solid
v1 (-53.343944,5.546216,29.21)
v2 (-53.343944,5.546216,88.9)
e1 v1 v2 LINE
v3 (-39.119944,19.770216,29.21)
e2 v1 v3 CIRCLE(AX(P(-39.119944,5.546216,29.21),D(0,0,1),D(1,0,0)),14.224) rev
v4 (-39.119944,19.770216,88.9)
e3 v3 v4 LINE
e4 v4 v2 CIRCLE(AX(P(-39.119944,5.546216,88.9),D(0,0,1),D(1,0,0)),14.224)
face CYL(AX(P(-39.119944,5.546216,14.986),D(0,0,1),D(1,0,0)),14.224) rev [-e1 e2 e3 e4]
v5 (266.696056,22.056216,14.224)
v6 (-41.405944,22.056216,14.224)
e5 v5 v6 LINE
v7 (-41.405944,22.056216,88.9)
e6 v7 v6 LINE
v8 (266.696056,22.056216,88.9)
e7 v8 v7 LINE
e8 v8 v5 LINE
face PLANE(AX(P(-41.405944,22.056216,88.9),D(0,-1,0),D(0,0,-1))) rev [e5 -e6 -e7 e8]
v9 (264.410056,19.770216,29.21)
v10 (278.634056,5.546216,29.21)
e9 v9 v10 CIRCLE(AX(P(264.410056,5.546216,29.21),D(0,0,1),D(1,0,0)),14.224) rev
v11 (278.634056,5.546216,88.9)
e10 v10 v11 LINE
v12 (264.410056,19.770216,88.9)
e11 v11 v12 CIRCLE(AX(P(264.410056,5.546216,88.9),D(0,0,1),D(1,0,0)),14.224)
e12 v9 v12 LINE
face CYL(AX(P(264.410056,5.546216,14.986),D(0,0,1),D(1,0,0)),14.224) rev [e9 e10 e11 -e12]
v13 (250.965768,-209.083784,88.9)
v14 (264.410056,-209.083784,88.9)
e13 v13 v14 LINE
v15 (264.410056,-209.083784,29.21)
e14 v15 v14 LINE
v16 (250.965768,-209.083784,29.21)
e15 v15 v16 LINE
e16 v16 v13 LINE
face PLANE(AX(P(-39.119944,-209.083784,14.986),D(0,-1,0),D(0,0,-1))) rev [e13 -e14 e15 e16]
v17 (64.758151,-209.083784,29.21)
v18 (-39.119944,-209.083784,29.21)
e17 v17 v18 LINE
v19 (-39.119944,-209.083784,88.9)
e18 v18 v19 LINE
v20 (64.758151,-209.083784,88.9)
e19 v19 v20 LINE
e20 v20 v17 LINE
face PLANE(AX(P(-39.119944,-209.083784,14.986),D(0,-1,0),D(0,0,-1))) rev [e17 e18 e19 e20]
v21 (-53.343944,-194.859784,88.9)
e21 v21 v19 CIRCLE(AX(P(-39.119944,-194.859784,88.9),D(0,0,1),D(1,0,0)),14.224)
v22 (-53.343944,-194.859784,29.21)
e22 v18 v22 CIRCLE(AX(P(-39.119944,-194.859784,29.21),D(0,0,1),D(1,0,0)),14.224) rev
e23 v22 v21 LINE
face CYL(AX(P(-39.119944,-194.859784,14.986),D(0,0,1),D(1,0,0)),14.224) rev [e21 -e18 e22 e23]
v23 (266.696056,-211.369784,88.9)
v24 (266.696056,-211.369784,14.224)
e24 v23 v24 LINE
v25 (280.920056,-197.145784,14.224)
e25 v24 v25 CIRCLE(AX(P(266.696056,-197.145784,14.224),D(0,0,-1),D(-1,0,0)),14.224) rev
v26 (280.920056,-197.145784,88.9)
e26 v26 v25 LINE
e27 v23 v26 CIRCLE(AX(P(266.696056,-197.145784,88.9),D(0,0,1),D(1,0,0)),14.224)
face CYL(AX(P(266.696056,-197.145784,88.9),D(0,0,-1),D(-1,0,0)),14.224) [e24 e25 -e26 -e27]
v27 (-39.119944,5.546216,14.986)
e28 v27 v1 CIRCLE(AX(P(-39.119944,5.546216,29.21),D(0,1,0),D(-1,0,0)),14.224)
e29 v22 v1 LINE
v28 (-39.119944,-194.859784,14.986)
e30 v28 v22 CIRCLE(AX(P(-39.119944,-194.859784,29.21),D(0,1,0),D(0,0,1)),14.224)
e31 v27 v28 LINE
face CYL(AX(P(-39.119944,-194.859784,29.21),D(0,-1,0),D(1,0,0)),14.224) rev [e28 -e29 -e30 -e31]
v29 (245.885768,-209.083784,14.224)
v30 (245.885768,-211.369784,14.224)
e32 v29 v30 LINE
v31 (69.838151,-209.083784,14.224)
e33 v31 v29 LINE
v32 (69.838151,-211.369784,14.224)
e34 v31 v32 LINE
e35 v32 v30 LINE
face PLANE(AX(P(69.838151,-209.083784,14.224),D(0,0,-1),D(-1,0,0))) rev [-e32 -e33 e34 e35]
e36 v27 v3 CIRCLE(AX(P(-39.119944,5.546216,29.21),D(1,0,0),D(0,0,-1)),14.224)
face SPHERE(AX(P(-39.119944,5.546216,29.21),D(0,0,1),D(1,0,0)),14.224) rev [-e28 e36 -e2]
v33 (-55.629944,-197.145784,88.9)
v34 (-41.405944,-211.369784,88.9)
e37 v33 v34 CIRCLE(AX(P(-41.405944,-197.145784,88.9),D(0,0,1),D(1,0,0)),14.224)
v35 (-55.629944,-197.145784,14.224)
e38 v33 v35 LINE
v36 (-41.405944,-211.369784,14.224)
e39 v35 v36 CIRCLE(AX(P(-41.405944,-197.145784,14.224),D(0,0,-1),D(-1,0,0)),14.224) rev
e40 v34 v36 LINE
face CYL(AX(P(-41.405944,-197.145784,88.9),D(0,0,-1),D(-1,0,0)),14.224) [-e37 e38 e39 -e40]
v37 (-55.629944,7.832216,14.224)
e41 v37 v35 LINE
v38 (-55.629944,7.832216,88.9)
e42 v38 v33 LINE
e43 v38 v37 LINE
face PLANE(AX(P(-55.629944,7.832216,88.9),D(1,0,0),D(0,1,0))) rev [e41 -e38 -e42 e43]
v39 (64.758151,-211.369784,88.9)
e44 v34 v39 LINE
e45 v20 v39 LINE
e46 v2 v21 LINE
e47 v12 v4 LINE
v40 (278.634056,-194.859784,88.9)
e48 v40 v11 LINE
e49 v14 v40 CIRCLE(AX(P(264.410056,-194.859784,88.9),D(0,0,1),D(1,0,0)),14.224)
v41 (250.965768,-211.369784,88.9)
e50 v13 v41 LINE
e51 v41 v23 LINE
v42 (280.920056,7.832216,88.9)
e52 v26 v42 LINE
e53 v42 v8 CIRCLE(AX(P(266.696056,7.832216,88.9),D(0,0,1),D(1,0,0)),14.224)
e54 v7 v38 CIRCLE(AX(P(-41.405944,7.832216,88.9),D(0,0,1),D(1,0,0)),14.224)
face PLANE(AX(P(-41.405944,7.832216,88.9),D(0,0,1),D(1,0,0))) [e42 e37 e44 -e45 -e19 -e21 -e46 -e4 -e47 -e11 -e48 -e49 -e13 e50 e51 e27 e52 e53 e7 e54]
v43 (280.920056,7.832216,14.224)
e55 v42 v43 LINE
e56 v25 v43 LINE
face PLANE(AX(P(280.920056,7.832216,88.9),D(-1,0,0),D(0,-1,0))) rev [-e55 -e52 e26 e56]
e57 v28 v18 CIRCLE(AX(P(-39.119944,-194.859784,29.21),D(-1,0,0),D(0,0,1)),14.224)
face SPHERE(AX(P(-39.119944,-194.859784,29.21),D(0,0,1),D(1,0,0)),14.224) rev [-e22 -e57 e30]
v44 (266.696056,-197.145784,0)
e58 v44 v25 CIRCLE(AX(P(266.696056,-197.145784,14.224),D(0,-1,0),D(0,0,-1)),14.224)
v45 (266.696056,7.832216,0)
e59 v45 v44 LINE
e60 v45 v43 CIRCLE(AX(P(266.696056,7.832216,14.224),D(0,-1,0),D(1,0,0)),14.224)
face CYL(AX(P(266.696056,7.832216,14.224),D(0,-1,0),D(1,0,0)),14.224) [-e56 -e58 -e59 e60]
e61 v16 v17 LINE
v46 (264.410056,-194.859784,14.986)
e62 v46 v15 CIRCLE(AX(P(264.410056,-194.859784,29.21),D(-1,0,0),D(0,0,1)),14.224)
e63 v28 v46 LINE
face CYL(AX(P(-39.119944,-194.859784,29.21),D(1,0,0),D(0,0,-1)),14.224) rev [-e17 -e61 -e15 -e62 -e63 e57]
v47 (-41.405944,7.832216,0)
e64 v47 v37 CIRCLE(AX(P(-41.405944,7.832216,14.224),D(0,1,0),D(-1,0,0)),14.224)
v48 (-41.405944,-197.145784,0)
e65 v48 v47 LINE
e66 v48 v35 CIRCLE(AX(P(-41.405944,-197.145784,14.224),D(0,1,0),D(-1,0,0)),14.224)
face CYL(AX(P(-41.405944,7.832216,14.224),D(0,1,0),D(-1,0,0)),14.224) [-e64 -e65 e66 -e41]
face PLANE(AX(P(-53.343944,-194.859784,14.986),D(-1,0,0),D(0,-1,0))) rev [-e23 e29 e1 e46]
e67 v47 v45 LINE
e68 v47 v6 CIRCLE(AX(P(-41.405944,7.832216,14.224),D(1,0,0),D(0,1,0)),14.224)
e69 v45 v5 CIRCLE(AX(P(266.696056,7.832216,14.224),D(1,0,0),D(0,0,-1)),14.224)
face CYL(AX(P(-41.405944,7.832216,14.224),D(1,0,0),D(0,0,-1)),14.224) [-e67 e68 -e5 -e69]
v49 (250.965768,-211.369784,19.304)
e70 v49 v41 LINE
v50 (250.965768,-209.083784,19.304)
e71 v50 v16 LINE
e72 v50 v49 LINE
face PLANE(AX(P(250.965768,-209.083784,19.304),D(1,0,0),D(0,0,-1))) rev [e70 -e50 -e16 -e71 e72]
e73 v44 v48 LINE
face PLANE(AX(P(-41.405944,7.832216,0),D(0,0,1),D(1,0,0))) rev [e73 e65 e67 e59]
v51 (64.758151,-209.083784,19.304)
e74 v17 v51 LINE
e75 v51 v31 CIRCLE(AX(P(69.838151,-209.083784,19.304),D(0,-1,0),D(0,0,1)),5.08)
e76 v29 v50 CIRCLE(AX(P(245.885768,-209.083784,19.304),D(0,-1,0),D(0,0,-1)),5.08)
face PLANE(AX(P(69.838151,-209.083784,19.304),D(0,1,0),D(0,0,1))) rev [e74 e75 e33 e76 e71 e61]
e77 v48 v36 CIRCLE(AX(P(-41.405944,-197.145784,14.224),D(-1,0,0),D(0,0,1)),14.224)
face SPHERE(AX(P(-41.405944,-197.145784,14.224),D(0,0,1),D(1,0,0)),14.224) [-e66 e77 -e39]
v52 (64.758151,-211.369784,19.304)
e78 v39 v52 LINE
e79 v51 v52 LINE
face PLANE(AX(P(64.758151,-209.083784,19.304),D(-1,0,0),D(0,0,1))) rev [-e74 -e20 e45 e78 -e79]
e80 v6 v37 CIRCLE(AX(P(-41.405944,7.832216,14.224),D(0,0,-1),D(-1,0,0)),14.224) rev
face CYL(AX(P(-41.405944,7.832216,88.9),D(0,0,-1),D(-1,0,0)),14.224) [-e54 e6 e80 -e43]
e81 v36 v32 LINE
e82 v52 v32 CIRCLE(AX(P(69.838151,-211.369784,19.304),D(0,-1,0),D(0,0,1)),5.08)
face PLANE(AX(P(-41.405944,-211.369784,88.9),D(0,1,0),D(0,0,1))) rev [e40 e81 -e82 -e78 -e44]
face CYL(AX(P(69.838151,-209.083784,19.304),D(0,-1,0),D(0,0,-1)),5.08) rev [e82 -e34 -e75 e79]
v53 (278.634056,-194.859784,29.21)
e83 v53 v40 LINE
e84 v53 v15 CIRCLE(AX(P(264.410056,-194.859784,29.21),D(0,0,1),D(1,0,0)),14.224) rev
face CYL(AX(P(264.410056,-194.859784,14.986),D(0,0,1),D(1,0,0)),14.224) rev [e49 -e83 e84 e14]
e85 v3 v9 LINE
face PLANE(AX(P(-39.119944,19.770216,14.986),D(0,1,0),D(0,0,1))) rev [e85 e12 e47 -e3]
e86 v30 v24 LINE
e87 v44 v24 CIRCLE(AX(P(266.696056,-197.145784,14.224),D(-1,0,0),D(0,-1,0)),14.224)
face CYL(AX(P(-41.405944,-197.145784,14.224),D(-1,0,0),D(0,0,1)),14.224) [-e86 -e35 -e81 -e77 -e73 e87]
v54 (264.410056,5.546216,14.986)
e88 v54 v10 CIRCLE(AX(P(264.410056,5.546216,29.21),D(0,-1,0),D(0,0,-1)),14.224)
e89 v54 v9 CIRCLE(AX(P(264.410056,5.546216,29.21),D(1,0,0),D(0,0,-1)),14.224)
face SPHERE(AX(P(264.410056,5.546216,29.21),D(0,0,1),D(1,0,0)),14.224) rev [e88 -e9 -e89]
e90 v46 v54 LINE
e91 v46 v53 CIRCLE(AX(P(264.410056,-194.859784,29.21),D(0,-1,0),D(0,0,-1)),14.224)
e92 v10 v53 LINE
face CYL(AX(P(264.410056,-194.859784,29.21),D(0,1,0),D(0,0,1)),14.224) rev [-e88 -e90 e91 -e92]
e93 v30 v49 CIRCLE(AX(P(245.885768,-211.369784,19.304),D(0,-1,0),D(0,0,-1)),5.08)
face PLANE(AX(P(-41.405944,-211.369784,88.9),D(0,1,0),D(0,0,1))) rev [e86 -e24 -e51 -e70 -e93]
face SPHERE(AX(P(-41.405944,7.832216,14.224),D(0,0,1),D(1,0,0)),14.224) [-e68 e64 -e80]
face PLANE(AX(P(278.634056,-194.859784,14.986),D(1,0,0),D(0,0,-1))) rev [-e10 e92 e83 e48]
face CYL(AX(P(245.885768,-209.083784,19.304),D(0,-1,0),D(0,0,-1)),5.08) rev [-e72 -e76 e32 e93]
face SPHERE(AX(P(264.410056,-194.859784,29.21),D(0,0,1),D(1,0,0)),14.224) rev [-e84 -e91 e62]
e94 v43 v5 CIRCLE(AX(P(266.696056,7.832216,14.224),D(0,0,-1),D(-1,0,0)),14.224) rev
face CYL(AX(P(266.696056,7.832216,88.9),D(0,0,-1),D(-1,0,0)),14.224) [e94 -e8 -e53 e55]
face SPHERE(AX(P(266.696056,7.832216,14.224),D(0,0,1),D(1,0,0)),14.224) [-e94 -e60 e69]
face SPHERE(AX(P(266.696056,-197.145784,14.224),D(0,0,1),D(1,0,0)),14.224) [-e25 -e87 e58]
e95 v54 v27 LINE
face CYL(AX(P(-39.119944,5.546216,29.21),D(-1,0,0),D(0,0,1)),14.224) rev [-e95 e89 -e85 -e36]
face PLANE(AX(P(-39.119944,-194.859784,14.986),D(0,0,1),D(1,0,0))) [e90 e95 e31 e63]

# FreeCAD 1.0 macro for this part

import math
import FreeCAD as App
import Part
import Sketcher
Q = App.Units.Quantity


def edges_at(feature, points):
    """Names of the edges that pass closest to the given points."""
    edges = feature.Shape.Edges
    near = lambda p: min(range(len(edges)), key=lambda i: edges[i].distToShape(Part.Vertex(*p))[0])
    return sorted({f"Edge{near(p) + 1}" for p in points})

doc = App.newDocument("Part")
body = doc.addObject("PartDesign::Body", "Body")

sketch1 = body.newObject("Sketcher::SketchObject", "Sketch")
sketch1.AttachmentSupport = (doc.getObject("XY_Plane"), [""])
sketch1.MapMode = "FlatFace"
sketch1.addGeometry([
    Part.LineSegment(App.Vector(267, 22, 0), App.Vector(-41, 22, 0)),
    Part.ArcOfCircle(Part.Circle(App.Vector(-41, 8, 0), App.Vector(0, 0, 1), 14), math.radians(90), math.radians(180)),
    Part.LineSegment(App.Vector(-56, 8, 0), App.Vector(-56, -197, 0)),
    Part.ArcOfCircle(Part.Circle(App.Vector(-41, -197, 0), App.Vector(0, 0, 1), 14), math.radians(180), math.radians(270)),
    Part.LineSegment(App.Vector(-41, -211, 0), App.Vector(267, -211, 0)),
    Part.ArcOfCircle(Part.Circle(App.Vector(267, -197, 0), App.Vector(0, 0, 1), 14), math.radians(-90), math.radians(0)),
    Part.LineSegment(App.Vector(281, -197, 0), App.Vector(281, 8, 0)),
    Part.ArcOfCircle(Part.Circle(App.Vector(267, 8, 0), App.Vector(0, 0, 1), 14), math.radians(0), math.radians(90)),
], False)
sketch1.addConstraint([
    Sketcher.Constraint("Tangent", 0, 2, 1, 1),
    Sketcher.Constraint("Tangent", 1, 2, 2, 1),
    Sketcher.Constraint("Tangent", 2, 2, 3, 1),
    Sketcher.Constraint("Tangent", 3, 2, 4, 1),
    Sketcher.Constraint("Tangent", 4, 2, 5, 1),
    Sketcher.Constraint("Tangent", 5, 2, 6, 1),
    Sketcher.Constraint("Tangent", 6, 2, 7, 1),
    Sketcher.Constraint("Tangent", 7, 2, 0, 1),
    Sketcher.Constraint("Horizontal", 0),
    Sketcher.Constraint("Vertical", 2),
    Sketcher.Constraint("Horizontal", 4),
    Sketcher.Constraint("Vertical", 6),
    Sketcher.Constraint("Equal", 1, 3),
    Sketcher.Constraint("Equal", 3, 5),
    Sketcher.Constraint("Equal", 5, 7),
    Sketcher.Constraint("Radius", 1, Q("0.56 in")),
    Sketcher.Constraint("DistanceX", 0, 2, 0, 1, Q("12.13 in")),
    Sketcher.Constraint("DistanceY", 2, 2, 2, 1, Q("8.07 in")),
    Sketcher.Constraint("DistanceX", 1, 3, -1, 1, 41.405944),
    Sketcher.Constraint("DistanceY", -1, 1, 1, 3, 7.832216),
])
pad1 = body.newObject("PartDesign::Pad", "Pad")
pad1.Profile = sketch1
pad1.Length = Q("3.5 in")

sketch2 = body.newObject("Sketcher::SketchObject", "Sketch001")
sketch2.AttachmentSupport = (doc.getObject("XY_Plane"), [""])
sketch2.MapMode = "FlatFace"
sketch2.AttachmentOffset = App.Placement(App.Vector(0, 0, 3.5 * 25.4), App.Rotation())
sketch2.addGeometry([
    Part.LineSegment(App.Vector(-39, -209, 0), App.Vector(264, -209, 0)),
    Part.ArcOfCircle(Part.Circle(App.Vector(264, -195, 0), App.Vector(0, 0, 1), 14), math.radians(-90), math.radians(0)),
    Part.LineSegment(App.Vector(279, -195, 0), App.Vector(279, 6, 0)),
    Part.ArcOfCircle(Part.Circle(App.Vector(264, 6, 0), App.Vector(0, 0, 1), 14), math.radians(0), math.radians(90)),
    Part.LineSegment(App.Vector(264, 20, 0), App.Vector(-39, 20, 0)),
    Part.ArcOfCircle(Part.Circle(App.Vector(-39, 6, 0), App.Vector(0, 0, 1), 14), math.radians(90), math.radians(180)),
    Part.LineSegment(App.Vector(-53, 6, 0), App.Vector(-53, -195, 0)),
    Part.ArcOfCircle(Part.Circle(App.Vector(-39, -195, 0), App.Vector(0, 0, 1), 14), math.radians(180), math.radians(270)),
], False)
sketch2.addConstraint([
    Sketcher.Constraint("Tangent", 0, 2, 1, 1),
    Sketcher.Constraint("Tangent", 1, 2, 2, 1),
    Sketcher.Constraint("Tangent", 2, 2, 3, 1),
    Sketcher.Constraint("Tangent", 3, 2, 4, 1),
    Sketcher.Constraint("Tangent", 4, 2, 5, 1),
    Sketcher.Constraint("Tangent", 5, 2, 6, 1),
    Sketcher.Constraint("Tangent", 6, 2, 7, 1),
    Sketcher.Constraint("Tangent", 7, 2, 0, 1),
    Sketcher.Constraint("Horizontal", 0),
    Sketcher.Constraint("Vertical", 2),
    Sketcher.Constraint("Horizontal", 4),
    Sketcher.Constraint("Vertical", 6),
    Sketcher.Constraint("Equal", 1, 3),
    Sketcher.Constraint("Equal", 3, 5),
    Sketcher.Constraint("Equal", 5, 7),
    Sketcher.Constraint("Radius", 1, Q("0.56 in")),
    Sketcher.Constraint("DistanceX", 0, 1, 0, 2, Q("11.95 in")),
    Sketcher.Constraint("DistanceY", 2, 1, 2, 2, Q("7.89 in")),
    Sketcher.Constraint("DistanceX", -1, 1, 1, 3, 264.410056),
    Sketcher.Constraint("DistanceY", 1, 3, -1, 1, 194.859784),
])
pocket1 = body.newObject("PartDesign::Pocket", "Pocket")
pocket1.Profile = sketch2
pocket1.Length = Q("2.91 in")
doc.recompute()

fillet = body.newObject("PartDesign::Fillet", "Fillet")
fillet.Base = (pocket1, edges_at(pocket1, [
    (-49.178, -204.918, 14.986),
    (-53.344, -94.657, 14.986),
    (-49.178, 15.604, 14.986),
    (112.645, 19.77, 14.986),
    (274.468, 15.604, 14.986),
    (278.634, -94.657, 14.986),
    (274.468, -204.918, 14.986),
    (112.645, -209.084, 14.986),
]))
fillet.Radius = Q("0.56 in")
doc.recompute()

fillet2 = body.newObject("PartDesign::Fillet", "Fillet001")
fillet2.Base = (fillet, edges_at(fillet, [
    (-55.63, -94.657, 0),
    (-51.464, 17.89, 0),
    (112.645, 22.056, 0),
    (276.754, 17.89, 0),
    (280.92, -94.657, 0),
    (276.754, -207.204, 0),
    (112.645, -211.37, 0),
    (-51.464, -207.204, 0),
]))
fillet2.Radius = Q("0.56 in")

sketch3 = body.newObject("Sketcher::SketchObject", "Sketch002")
sketch3.AttachmentSupport = (doc.getObject("XZ_Plane"), [""])
sketch3.MapMode = "FlatFace"
sketch3.AttachmentOffset = App.Placement(App.Vector(0, 0, 211.369784), App.Rotation())
sketch3.addGeometry([
    Part.LineSegment(App.Vector(70, 14, 0), App.Vector(246, 14, 0)),
    Part.ArcOfCircle(Part.Circle(App.Vector(246, 19, 0), App.Vector(0, 0, 1), 5), math.radians(-90), math.radians(0)),
    Part.LineSegment(App.Vector(251, 19, 0), App.Vector(251, 89, 0)),
    Part.LineSegment(App.Vector(251, 89, 0), App.Vector(65, 89, 0)),
    Part.LineSegment(App.Vector(65, 89, 0), App.Vector(65, 19, 0)),
    Part.ArcOfCircle(Part.Circle(App.Vector(70, 19, 0), App.Vector(0, 0, 1), 5), math.radians(180), math.radians(270)),
], False)
sketch3.addConstraint([
    Sketcher.Constraint("Tangent", 0, 2, 1, 1),
    Sketcher.Constraint("Tangent", 1, 2, 2, 1),
    Sketcher.Constraint("Coincident", 2, 2, 3, 1),
    Sketcher.Constraint("Coincident", 3, 2, 4, 1),
    Sketcher.Constraint("Tangent", 4, 2, 5, 1),
    Sketcher.Constraint("Tangent", 5, 2, 0, 1),
    Sketcher.Constraint("Horizontal", 0),
    Sketcher.Constraint("Vertical", 2),
    Sketcher.Constraint("Horizontal", 3),
    Sketcher.Constraint("Vertical", 4),
    Sketcher.Constraint("Equal", 1, 5),
    Sketcher.Constraint("Radius", 1, Q("0.2 in")),
    Sketcher.Constraint("DistanceY", 2, 1, 2, 2, Q("2.74 in")),
    Sketcher.Constraint("DistanceY", -1, 1, 2, 2, Q("3.5 in")),
    Sketcher.Constraint("DistanceX", 0, 1, 0, 2, 176.047616),
    Sketcher.Constraint("DistanceX", -1, 1, 5, 3, 69.838151),
])
pocket2 = body.newObject("PartDesign::Pocket", "Pocket001")
pocket2.Profile = sketch3
pocket2.Length = Q("0.09 in")

doc.recompute()
